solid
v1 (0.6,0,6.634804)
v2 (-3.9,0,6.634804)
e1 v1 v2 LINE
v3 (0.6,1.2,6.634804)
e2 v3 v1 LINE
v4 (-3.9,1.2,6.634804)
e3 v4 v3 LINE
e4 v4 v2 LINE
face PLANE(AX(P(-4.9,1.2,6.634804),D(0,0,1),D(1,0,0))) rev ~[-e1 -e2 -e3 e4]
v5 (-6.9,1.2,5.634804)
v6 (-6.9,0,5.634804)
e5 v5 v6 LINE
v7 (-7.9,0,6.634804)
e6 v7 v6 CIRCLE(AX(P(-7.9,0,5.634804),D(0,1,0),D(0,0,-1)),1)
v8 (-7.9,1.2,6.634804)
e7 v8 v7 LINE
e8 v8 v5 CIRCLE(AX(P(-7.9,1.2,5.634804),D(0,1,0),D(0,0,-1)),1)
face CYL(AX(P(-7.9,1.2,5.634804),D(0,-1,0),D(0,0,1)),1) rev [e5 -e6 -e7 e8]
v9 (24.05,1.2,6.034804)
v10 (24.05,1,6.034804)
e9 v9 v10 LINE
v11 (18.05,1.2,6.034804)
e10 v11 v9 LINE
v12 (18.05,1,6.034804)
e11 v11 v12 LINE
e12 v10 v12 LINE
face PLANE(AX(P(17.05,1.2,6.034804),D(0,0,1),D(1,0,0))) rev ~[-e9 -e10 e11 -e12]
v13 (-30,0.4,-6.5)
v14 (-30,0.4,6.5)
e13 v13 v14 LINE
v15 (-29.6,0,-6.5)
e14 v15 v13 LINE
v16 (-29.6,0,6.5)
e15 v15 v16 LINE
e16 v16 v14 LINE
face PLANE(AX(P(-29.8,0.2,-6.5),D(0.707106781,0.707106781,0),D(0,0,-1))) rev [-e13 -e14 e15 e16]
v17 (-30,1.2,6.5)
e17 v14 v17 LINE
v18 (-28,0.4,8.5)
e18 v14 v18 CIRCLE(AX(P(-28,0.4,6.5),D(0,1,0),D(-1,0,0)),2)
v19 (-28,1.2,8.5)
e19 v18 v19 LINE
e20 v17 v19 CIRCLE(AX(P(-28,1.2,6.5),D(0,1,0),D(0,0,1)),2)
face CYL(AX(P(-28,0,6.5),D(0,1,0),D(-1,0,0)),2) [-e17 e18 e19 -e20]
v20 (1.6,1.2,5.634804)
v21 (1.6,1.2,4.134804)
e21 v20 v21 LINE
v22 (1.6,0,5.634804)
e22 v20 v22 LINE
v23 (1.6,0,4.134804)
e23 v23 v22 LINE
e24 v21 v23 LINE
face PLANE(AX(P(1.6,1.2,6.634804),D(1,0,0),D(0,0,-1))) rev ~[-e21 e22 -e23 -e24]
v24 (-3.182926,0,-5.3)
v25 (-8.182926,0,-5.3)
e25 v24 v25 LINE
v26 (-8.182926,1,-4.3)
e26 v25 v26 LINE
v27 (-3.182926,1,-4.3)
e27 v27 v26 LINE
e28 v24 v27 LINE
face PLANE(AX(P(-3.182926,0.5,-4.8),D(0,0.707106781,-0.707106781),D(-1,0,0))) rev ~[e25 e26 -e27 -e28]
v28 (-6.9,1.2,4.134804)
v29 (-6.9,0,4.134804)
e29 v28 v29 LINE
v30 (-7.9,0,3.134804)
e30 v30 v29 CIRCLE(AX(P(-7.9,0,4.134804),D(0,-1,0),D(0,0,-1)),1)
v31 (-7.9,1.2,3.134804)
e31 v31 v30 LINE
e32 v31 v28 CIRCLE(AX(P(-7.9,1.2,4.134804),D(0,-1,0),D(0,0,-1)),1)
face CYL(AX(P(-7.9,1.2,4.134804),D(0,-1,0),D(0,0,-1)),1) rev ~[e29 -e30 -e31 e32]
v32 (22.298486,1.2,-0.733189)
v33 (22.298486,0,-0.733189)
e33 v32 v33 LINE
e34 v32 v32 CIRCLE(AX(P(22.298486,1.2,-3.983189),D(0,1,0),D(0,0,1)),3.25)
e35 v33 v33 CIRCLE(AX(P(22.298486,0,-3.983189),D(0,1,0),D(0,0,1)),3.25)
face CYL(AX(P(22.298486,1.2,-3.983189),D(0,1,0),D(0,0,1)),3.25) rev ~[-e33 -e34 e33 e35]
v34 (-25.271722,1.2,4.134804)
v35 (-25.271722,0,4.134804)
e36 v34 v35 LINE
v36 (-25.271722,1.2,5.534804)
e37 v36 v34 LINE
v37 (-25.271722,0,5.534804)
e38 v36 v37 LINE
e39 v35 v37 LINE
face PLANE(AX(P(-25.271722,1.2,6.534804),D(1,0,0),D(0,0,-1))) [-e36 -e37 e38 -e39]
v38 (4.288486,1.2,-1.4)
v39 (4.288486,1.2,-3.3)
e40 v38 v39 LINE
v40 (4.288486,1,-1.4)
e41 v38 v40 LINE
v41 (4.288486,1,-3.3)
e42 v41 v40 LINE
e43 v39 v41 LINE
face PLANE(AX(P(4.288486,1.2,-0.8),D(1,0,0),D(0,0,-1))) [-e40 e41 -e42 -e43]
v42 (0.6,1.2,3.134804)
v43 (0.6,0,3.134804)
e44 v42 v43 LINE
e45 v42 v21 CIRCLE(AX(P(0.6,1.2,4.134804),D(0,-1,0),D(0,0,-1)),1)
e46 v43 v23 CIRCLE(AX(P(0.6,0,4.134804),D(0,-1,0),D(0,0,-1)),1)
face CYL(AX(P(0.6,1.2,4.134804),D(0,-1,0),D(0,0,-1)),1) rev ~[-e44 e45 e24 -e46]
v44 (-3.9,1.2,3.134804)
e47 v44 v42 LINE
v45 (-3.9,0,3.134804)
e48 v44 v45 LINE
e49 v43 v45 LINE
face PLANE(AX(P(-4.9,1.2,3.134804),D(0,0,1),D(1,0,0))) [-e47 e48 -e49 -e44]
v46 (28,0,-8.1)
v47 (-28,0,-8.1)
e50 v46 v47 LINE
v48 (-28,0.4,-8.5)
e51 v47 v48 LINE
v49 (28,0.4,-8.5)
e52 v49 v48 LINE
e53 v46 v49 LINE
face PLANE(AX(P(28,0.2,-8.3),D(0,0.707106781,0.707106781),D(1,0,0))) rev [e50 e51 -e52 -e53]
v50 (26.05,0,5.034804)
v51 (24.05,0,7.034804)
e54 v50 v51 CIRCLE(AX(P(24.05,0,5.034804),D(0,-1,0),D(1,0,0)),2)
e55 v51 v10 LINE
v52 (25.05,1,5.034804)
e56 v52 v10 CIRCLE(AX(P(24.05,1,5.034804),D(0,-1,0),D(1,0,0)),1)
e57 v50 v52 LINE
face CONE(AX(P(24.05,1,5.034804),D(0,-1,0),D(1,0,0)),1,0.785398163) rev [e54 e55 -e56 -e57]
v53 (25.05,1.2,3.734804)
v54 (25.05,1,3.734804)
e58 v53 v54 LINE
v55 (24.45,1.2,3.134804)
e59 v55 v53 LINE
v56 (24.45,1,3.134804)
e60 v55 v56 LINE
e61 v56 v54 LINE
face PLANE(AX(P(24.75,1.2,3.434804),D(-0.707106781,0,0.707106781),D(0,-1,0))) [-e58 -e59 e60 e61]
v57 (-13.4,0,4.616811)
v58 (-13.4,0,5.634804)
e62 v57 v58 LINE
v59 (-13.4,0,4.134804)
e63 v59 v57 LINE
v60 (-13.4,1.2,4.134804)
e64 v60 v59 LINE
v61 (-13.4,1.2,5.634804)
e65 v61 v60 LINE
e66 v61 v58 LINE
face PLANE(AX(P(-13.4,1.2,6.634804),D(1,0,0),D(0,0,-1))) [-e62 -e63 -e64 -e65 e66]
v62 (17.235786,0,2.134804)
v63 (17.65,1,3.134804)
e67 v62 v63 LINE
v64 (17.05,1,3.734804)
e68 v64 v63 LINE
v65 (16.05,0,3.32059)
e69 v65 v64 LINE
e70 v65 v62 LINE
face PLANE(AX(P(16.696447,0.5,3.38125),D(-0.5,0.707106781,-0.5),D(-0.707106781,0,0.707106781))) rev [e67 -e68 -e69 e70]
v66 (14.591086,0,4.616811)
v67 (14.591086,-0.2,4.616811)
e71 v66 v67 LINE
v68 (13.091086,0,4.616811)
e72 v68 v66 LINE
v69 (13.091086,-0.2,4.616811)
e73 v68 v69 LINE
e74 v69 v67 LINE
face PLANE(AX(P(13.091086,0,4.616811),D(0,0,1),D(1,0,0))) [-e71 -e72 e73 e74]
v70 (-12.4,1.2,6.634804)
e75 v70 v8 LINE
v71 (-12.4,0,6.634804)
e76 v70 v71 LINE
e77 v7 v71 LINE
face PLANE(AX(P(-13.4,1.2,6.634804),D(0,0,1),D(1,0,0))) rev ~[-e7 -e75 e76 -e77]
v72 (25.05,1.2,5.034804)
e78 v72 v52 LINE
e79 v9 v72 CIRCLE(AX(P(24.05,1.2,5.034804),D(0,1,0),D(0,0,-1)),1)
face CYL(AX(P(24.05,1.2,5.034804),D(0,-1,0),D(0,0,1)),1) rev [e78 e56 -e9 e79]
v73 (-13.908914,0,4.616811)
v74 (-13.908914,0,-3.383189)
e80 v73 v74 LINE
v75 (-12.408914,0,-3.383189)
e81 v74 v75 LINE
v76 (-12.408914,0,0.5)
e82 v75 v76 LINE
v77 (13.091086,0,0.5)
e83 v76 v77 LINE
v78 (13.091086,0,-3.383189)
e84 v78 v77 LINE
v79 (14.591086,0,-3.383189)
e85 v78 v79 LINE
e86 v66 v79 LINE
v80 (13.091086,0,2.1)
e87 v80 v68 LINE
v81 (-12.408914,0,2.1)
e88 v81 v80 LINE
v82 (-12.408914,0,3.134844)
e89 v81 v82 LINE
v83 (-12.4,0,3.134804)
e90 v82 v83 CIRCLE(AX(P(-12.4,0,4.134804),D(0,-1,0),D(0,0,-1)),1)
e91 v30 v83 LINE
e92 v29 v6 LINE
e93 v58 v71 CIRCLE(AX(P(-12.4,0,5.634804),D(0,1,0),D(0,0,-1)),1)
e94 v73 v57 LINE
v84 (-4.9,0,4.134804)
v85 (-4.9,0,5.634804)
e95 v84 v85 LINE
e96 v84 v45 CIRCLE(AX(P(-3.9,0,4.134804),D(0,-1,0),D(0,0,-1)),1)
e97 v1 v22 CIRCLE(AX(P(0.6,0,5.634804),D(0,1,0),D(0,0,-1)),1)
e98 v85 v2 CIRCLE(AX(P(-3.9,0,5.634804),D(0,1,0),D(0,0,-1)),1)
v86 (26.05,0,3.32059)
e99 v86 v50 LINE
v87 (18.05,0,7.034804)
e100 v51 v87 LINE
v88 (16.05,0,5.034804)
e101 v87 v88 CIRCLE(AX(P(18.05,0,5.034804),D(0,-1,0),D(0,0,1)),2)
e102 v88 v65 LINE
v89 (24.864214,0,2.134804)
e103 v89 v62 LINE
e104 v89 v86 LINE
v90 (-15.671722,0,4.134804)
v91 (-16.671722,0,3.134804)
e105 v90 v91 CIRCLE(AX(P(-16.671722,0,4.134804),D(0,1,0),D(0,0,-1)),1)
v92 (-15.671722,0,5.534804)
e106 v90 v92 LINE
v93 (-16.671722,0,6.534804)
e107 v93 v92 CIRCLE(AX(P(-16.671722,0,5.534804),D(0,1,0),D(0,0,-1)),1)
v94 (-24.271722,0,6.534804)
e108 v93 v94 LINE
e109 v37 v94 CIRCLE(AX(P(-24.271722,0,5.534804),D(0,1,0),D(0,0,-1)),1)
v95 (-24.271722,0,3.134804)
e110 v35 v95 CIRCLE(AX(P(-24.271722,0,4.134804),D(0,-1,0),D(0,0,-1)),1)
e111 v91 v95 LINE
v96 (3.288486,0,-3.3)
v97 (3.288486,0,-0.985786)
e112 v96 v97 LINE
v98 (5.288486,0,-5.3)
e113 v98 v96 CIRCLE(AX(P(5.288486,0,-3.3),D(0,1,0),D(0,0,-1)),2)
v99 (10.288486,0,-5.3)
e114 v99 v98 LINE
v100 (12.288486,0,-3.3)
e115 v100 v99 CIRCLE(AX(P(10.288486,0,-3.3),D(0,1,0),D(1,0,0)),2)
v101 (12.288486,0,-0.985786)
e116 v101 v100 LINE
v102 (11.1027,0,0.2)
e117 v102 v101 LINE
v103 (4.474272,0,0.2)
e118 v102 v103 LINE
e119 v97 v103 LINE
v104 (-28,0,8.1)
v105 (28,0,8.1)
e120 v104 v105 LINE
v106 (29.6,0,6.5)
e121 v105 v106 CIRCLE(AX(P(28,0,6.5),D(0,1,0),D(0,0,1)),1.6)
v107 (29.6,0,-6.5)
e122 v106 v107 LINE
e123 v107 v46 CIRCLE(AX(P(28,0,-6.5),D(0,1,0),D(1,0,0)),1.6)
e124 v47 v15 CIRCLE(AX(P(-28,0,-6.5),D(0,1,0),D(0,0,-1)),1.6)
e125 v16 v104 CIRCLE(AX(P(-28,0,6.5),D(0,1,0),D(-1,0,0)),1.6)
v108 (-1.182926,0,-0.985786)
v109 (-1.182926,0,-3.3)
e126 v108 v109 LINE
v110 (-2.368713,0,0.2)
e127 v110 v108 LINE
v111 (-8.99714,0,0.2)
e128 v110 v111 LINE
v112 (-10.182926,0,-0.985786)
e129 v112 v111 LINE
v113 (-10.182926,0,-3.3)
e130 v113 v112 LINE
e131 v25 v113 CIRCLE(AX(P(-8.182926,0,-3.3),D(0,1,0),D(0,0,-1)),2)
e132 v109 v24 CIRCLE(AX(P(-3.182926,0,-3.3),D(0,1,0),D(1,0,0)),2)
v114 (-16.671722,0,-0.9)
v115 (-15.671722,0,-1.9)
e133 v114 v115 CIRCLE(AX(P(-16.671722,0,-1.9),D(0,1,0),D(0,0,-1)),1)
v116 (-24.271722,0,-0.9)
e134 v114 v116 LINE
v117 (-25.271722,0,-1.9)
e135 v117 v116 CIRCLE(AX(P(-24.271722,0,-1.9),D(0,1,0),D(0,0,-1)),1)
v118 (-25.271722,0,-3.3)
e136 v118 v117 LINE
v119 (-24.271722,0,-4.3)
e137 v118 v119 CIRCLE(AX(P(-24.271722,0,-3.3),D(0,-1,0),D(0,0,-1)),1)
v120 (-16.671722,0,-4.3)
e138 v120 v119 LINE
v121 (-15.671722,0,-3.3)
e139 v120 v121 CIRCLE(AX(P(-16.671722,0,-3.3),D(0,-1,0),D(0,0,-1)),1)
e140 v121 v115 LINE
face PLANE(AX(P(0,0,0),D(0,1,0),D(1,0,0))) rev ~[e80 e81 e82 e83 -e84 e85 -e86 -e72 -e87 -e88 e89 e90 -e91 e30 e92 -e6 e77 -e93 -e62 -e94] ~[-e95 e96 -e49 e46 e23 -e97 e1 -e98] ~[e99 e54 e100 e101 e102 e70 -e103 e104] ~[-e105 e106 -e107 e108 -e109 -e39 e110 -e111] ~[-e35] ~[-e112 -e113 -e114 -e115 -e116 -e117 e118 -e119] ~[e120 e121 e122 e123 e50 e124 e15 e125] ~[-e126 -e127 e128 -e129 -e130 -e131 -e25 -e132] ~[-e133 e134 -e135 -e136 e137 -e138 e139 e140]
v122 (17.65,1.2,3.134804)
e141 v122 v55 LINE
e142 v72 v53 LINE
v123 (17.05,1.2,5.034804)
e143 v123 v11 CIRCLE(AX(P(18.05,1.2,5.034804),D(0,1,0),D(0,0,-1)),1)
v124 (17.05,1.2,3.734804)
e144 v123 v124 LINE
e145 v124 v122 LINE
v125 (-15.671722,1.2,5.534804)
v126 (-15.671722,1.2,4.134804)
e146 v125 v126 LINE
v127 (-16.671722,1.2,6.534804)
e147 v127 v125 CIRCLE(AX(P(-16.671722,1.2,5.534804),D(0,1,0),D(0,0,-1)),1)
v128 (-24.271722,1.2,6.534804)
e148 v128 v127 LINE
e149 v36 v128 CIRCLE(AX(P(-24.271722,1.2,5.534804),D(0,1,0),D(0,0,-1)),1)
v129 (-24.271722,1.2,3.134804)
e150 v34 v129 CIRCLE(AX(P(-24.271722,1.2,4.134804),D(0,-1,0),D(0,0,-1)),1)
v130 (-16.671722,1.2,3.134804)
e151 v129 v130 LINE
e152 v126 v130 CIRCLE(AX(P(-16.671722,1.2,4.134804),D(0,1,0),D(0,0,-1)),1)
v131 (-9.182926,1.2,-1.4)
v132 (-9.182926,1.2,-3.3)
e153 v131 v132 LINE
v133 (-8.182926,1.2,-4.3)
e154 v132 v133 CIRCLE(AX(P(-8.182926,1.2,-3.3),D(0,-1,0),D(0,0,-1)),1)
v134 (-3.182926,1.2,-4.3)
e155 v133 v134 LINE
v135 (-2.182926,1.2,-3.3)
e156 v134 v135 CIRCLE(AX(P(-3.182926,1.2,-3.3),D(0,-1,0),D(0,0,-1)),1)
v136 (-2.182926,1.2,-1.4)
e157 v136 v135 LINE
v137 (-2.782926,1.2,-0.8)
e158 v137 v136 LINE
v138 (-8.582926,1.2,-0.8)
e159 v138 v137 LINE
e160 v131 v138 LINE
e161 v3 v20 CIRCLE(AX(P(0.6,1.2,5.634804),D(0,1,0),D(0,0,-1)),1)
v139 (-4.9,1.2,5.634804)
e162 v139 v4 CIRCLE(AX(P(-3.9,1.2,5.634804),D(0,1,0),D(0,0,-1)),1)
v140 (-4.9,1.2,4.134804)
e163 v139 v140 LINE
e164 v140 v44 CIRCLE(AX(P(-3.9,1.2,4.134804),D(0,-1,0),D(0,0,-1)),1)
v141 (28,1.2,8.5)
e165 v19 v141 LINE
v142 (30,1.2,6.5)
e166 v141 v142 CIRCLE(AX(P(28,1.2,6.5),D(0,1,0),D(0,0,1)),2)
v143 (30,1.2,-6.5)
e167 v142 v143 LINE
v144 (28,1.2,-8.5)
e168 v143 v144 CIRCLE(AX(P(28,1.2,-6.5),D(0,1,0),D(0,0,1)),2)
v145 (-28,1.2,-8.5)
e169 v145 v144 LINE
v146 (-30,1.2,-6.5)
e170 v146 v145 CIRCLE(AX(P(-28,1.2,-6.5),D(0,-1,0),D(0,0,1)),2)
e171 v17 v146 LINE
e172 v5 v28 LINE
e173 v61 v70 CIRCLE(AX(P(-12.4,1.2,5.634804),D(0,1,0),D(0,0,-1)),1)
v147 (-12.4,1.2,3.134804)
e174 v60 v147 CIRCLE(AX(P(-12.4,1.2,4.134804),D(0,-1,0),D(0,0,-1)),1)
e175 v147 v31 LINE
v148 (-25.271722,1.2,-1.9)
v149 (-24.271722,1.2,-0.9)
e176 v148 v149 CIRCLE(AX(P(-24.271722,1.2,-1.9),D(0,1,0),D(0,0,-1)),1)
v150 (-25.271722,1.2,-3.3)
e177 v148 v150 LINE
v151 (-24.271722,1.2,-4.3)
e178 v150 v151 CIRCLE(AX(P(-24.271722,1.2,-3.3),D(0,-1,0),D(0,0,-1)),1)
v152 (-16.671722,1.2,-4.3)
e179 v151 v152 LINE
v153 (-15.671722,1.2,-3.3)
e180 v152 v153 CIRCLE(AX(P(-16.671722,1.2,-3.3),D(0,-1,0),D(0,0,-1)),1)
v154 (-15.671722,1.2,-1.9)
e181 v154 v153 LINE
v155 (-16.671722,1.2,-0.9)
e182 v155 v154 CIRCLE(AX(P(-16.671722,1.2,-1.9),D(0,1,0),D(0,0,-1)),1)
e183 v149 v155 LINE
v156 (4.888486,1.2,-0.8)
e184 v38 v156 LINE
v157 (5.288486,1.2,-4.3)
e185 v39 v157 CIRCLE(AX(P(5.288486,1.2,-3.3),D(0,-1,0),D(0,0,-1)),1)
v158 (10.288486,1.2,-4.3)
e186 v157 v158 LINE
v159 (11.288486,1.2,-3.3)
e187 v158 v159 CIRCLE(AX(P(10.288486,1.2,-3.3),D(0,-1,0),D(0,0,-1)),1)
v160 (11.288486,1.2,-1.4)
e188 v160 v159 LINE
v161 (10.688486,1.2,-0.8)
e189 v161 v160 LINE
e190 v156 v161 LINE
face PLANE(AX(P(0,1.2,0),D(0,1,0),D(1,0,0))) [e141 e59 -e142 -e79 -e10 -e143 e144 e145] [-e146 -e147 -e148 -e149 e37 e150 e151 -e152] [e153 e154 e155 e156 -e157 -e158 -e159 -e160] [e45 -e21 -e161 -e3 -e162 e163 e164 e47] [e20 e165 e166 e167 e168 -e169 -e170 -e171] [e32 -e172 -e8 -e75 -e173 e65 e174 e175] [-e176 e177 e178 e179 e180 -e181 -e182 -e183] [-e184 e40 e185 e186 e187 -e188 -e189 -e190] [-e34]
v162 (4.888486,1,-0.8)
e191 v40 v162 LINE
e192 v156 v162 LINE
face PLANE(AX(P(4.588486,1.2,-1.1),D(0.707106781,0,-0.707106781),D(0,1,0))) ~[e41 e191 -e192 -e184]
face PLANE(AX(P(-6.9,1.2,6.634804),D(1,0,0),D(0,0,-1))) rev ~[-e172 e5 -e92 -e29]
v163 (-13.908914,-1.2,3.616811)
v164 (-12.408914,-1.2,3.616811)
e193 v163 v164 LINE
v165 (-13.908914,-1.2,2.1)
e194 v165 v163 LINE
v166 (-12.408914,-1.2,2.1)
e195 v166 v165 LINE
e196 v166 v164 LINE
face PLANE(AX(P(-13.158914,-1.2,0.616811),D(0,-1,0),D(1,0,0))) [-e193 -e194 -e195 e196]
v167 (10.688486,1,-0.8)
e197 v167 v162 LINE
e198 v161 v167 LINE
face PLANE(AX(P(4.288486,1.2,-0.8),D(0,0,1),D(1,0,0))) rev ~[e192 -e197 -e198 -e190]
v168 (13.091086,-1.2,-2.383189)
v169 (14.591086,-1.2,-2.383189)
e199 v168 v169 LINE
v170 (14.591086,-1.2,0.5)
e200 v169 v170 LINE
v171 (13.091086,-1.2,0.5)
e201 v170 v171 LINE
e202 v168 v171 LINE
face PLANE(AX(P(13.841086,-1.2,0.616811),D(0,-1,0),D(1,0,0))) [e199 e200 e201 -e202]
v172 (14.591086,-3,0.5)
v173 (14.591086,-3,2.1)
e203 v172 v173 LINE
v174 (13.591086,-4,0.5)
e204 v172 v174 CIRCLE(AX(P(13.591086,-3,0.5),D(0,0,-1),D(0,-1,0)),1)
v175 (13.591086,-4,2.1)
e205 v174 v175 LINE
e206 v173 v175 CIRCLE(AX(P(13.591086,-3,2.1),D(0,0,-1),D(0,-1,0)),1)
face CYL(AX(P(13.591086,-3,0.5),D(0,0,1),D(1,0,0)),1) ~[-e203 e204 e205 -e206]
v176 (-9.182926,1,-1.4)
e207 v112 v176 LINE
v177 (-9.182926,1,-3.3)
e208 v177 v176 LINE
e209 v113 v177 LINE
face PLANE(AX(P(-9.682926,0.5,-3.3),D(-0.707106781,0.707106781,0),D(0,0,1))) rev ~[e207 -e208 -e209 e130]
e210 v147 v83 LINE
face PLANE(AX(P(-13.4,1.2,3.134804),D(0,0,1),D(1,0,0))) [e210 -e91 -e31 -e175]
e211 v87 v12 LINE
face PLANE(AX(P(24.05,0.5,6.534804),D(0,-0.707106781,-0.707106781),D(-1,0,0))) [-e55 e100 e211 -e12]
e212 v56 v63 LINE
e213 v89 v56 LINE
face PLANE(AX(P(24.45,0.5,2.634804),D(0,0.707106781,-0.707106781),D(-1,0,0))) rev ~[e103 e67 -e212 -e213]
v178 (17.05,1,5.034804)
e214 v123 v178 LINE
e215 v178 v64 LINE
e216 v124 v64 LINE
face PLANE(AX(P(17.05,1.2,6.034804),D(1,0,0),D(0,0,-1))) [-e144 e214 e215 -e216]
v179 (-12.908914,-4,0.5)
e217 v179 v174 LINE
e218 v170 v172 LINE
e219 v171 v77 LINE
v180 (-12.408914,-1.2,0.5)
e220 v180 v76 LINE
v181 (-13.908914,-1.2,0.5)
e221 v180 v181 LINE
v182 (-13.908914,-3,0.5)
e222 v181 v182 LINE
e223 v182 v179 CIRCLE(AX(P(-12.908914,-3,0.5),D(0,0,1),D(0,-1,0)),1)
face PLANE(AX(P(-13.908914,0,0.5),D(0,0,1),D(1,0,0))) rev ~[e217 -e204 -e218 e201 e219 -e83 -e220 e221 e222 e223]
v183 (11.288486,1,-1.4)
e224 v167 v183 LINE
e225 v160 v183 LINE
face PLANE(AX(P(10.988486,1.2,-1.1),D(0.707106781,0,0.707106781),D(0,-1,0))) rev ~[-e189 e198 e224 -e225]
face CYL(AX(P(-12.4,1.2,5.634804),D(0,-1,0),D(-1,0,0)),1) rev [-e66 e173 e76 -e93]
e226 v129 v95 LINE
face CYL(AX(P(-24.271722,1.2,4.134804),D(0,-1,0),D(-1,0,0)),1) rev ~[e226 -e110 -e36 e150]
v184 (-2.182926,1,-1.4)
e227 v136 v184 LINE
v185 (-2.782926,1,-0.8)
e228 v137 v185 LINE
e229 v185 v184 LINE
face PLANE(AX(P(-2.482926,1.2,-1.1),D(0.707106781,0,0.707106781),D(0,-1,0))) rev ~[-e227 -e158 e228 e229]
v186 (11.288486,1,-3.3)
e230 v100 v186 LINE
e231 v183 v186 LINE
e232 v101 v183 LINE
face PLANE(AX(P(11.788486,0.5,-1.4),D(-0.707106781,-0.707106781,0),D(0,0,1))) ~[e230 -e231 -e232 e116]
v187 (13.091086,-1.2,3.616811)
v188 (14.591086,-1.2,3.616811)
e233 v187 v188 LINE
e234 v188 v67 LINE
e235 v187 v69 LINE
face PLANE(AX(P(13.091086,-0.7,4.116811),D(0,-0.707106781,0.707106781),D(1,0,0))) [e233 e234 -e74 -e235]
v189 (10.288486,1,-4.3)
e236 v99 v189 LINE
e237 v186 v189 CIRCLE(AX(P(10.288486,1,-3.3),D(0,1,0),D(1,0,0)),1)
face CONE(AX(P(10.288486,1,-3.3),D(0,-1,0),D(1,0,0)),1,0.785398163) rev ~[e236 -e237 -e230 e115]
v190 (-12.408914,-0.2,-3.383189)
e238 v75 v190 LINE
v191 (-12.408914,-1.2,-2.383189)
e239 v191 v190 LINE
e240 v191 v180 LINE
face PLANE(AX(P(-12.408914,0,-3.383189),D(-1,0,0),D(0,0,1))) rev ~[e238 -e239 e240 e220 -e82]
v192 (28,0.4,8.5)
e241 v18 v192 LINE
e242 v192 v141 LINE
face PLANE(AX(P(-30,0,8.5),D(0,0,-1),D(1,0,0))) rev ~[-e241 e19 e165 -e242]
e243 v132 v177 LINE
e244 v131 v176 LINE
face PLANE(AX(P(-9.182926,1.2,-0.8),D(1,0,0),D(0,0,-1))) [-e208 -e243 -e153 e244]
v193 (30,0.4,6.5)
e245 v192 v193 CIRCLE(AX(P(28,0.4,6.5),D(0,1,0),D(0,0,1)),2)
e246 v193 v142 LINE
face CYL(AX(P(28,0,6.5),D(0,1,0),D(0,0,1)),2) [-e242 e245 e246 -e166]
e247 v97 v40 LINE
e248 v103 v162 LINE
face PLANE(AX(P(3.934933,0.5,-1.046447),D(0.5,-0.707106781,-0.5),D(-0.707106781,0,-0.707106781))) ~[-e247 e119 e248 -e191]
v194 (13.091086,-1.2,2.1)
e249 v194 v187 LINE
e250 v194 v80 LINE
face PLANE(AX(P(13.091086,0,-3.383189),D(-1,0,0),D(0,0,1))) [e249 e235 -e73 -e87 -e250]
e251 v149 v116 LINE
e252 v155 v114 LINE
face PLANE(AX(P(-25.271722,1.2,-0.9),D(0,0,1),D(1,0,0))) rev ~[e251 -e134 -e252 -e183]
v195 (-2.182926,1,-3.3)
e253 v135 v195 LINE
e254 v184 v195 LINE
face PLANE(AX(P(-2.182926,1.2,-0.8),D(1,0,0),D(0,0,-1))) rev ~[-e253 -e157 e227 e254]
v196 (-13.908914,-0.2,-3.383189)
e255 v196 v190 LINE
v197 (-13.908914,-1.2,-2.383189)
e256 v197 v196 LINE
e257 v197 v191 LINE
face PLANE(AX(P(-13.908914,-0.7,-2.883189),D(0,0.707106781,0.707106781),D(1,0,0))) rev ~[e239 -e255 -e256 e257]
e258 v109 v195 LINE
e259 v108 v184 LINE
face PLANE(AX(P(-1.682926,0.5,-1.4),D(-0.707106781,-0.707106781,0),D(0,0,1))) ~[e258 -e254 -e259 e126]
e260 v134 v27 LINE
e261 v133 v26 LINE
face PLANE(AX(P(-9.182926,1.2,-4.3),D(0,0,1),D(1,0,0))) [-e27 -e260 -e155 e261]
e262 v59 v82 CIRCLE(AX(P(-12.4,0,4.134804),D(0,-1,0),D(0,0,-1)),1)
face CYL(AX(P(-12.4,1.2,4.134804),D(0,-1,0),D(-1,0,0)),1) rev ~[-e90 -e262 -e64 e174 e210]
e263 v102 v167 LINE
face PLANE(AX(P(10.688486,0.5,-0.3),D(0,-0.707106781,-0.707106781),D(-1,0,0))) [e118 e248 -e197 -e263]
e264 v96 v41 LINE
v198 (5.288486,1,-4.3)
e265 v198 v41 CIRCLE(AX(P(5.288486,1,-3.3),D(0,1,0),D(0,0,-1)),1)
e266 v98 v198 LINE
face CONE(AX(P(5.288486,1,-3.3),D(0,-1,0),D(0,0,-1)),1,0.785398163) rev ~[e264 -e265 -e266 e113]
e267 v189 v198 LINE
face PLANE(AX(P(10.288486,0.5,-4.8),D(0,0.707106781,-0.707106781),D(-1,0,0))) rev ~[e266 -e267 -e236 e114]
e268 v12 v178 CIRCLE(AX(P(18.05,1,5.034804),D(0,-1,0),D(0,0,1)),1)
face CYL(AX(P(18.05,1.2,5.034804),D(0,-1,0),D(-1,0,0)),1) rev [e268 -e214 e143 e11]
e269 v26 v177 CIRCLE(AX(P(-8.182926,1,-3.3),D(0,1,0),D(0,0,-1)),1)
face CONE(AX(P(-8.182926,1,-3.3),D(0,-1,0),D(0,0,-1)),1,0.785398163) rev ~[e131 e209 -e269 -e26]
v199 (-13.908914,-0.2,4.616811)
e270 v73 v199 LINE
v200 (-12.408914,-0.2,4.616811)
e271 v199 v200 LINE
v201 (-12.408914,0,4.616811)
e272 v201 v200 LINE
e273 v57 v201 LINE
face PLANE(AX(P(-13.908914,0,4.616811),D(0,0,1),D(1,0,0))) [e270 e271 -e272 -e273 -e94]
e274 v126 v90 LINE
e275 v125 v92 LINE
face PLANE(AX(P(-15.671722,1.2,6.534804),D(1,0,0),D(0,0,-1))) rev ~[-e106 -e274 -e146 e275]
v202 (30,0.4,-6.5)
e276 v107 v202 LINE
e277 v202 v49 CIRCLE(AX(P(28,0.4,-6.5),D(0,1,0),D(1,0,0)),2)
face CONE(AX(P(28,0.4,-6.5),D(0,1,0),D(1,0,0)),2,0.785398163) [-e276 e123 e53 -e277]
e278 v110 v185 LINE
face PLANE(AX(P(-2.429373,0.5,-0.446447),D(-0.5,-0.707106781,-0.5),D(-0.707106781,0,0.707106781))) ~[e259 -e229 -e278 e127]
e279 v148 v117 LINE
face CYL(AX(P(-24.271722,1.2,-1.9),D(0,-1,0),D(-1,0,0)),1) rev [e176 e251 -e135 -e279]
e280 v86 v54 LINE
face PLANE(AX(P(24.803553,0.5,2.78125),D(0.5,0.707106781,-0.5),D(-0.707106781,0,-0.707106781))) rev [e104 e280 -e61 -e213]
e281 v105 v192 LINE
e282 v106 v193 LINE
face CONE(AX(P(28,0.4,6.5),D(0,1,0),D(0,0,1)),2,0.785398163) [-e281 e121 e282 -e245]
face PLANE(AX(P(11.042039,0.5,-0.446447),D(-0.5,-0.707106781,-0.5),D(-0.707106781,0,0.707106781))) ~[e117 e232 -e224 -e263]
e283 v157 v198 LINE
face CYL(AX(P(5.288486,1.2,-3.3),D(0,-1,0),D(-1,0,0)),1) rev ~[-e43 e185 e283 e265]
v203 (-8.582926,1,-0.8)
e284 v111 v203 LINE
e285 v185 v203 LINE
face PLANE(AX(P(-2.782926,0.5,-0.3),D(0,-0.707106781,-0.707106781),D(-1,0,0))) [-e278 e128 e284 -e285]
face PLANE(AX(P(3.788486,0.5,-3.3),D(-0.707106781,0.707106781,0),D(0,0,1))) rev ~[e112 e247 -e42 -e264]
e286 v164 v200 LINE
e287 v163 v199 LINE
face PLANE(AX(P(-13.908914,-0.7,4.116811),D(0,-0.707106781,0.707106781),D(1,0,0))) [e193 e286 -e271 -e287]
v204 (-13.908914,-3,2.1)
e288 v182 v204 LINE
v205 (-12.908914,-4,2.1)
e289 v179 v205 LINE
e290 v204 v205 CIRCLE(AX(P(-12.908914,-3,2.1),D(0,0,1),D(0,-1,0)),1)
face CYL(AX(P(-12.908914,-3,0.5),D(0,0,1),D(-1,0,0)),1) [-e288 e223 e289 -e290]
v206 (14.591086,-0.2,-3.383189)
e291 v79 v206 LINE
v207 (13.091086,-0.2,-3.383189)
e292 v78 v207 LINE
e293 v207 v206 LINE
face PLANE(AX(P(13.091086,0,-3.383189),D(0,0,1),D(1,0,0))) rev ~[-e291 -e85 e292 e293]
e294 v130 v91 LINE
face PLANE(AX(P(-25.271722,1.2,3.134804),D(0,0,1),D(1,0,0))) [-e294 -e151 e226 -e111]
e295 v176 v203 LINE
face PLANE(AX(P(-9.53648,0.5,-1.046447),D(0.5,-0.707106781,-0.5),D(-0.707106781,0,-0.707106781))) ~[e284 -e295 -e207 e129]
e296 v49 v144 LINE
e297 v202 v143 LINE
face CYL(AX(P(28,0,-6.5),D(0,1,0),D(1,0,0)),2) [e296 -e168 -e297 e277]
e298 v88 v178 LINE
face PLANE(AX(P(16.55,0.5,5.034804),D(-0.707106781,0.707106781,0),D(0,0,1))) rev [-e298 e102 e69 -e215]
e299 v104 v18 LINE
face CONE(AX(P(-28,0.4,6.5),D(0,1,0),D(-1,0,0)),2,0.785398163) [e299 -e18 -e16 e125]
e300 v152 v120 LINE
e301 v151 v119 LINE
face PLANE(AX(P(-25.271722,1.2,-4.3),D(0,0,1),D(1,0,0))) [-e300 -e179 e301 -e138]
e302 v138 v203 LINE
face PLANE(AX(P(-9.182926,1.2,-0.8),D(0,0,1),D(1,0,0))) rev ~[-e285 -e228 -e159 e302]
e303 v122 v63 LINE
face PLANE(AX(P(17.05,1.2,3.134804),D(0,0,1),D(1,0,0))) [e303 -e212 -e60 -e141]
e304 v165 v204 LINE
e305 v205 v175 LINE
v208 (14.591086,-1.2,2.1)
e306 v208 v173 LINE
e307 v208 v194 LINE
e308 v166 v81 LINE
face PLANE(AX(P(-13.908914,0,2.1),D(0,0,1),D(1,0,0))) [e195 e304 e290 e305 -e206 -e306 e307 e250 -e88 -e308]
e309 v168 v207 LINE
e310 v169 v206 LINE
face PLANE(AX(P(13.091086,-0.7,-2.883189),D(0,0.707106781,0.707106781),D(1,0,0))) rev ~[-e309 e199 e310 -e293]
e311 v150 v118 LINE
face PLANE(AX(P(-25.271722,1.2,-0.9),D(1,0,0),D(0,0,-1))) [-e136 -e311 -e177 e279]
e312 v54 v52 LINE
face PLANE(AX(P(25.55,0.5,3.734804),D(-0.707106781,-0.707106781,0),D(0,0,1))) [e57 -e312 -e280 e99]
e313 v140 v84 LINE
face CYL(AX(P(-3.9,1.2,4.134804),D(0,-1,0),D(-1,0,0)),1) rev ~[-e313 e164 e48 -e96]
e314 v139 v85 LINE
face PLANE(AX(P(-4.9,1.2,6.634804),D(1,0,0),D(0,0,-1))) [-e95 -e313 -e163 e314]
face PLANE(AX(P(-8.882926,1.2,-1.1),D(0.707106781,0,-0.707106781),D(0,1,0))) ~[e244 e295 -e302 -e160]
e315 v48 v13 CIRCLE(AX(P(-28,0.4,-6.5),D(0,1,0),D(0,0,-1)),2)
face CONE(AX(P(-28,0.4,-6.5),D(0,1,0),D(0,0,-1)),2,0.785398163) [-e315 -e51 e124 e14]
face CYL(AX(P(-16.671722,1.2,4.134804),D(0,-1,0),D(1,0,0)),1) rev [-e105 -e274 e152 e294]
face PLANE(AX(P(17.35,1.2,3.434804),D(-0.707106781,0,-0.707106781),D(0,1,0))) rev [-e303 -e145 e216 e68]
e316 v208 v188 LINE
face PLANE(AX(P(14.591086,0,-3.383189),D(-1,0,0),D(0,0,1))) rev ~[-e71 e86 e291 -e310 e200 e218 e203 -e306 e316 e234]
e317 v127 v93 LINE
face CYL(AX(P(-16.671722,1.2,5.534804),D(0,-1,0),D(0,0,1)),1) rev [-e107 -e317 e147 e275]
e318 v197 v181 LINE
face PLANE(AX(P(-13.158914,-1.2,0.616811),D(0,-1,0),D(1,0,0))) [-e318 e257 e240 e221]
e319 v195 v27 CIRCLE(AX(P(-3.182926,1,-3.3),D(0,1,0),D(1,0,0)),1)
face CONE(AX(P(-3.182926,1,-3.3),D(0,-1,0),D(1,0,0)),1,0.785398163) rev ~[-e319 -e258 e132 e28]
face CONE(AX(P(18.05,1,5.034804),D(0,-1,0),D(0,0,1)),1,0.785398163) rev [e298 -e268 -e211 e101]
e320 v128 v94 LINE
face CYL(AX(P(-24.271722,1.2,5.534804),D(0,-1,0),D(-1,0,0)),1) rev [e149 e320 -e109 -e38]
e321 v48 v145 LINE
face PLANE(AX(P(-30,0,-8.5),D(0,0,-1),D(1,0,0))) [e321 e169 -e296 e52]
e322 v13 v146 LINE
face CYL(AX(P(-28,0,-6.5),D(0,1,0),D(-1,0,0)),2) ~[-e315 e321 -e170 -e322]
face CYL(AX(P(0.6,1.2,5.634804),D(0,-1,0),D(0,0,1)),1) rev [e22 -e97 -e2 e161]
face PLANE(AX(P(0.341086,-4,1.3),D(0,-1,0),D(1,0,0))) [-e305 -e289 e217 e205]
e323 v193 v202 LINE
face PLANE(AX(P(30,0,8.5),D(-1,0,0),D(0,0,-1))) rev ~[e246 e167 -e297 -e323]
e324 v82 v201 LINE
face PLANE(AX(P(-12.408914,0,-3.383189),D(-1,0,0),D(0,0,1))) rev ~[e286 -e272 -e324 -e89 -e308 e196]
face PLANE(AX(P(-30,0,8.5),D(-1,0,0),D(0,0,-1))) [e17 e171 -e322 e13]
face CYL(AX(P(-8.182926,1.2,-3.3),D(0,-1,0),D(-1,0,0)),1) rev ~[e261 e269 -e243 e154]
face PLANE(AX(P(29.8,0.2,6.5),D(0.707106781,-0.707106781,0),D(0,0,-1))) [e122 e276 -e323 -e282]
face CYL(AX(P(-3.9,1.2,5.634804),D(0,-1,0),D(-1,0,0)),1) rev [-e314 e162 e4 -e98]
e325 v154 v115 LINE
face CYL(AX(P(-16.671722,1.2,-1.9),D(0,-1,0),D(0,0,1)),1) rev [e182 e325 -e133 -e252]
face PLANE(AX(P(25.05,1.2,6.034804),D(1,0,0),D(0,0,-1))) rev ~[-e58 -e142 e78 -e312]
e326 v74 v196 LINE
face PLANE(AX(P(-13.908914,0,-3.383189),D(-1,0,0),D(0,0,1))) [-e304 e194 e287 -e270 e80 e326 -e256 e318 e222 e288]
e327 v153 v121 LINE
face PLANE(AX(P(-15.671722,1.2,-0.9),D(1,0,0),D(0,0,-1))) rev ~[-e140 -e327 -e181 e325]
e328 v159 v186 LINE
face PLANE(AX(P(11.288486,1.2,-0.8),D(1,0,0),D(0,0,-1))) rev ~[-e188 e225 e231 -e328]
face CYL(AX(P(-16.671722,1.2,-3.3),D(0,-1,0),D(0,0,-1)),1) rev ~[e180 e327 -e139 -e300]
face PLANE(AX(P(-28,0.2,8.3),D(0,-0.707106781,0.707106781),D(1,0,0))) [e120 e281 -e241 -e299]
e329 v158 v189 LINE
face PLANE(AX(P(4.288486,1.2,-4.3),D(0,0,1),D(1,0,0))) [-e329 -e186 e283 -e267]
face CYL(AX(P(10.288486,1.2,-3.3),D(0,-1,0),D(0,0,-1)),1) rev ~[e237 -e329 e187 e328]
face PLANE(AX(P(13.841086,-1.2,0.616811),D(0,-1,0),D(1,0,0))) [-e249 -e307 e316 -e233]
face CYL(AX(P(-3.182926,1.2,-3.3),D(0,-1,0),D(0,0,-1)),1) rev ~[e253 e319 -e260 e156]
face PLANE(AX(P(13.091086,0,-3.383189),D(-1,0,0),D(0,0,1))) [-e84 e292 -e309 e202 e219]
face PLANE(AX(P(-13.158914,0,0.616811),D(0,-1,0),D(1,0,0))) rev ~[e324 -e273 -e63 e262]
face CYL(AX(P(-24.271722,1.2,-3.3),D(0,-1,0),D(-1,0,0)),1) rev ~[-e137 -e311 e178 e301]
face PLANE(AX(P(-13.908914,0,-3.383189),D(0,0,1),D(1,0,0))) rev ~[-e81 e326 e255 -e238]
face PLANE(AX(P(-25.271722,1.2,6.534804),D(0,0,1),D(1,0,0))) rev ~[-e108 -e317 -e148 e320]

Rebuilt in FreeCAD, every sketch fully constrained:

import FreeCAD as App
import Part
import Sketcher


def edges_at(feature, points):
    """Names of the edges that pass closest to the given points."""
    edges = feature.Shape.Edges
    near = lambda p: min(range(len(edges)), key=lambda i: edges[i].distToShape(Part.Vertex(*p))[0])
    return sorted({f"Edge{near(p) + 1}" for p in points})

doc = App.newDocument("Part")
body = doc.addObject("PartDesign::Body", "Body")

# Sketch on XZ plane
sketch1 = body.newObject("Sketcher::SketchObject", "Sketch")
sketch1.AttachmentSupport = (doc.getObject("XZ_Plane"), [""])
sketch1.MapMode = "FlatFace"
sketch1.addGeometry([
    Part.LineSegment(App.Vector(-30, -8, 0), App.Vector(-30, 8, 0)),
    Part.LineSegment(App.Vector(-30, 8, 0), App.Vector(30, 8, 0)),
    Part.LineSegment(App.Vector(30, 8, 0), App.Vector(30, -8, 0)),
    Part.LineSegment(App.Vector(30, -8, 0), App.Vector(-30, -8, 0)),
], False)
sketch1.addConstraint([
    Sketcher.Constraint("Coincident", 0, 2, 1, 1),
    Sketcher.Constraint("Coincident", 1, 2, 2, 1),
    Sketcher.Constraint("Coincident", 2, 2, 3, 1),
    Sketcher.Constraint("Coincident", 3, 2, 0, 1),
    Sketcher.Constraint("Vertical", 0),
    Sketcher.Constraint("Horizontal", 1),
    Sketcher.Constraint("Vertical", 2),
    Sketcher.Constraint("Horizontal", 3),
    Sketcher.Constraint("Symmetric", 0, 2, 2, 2, -1, 1),
    Sketcher.Constraint("DistanceX", 1, 1, 1, 2, 60.0),
    Sketcher.Constraint("DistanceY", 0, 1, 0, 2, 17.0),
])
pad1 = body.newObject("PartDesign::Pad", "Pad")
pad1.Profile = sketch1
pad1.Length = 1.2
pad1.Reversed = True

# Sketch on XZ plane
sketch2 = body.newObject("Sketcher::SketchObject", "Sketch001")
sketch2.AttachmentSupport = (doc.getObject("XZ_Plane"), [""])
sketch2.MapMode = "FlatFace"
sketch2.AttachmentOffset = App.Placement(App.Vector(0, 0, -1.2), App.Rotation())
sketch2.addGeometry(Part.Circle(App.Vector(22.3, -4, 0), App.Vector(0, 0, 1), 3.2), False)
sketch2.addConstraint([
    Sketcher.Constraint("Diameter", 0, 6.5),
    Sketcher.Constraint("DistanceY", 0, 3, -1, 1, 3.983189),
    Sketcher.Constraint("DistanceX", -1, 1, 0, 3, 22.298486),
])
pocket1 = body.newObject("PartDesign::Pocket", "Pocket")
pocket1.Profile = sketch2
pocket1.Type = "UpToFirst"
pocket1.Reversed = True

# Sketch on XZ plane
sketch3 = body.newObject("Sketcher::SketchObject", "Sketch002")
sketch3.AttachmentSupport = (doc.getObject("XZ_Plane"), [""])
sketch3.MapMode = "FlatFace"
sketch3.AttachmentOffset = App.Placement(App.Vector(0, 0, -1.2), App.Rotation())
sketch3.addGeometry([
    Part.LineSegment(App.Vector(-25.3, -4.3, 0), App.Vector(-25.3, -0.9, 0)),
    Part.LineSegment(App.Vector(-25.3, -0.9, 0), App.Vector(-15.7, -0.9, 0)),
    Part.LineSegment(App.Vector(-15.7, -0.9, 0), App.Vector(-15.7, -4.3, 0)),
    Part.LineSegment(App.Vector(-15.7, -4.3, 0), App.Vector(-25.3, -4.3, 0)),
], False)
sketch3.addConstraint([
    Sketcher.Constraint("Coincident", 0, 2, 1, 1),
    Sketcher.Constraint("Coincident", 1, 2, 2, 1),
    Sketcher.Constraint("Coincident", 2, 2, 3, 1),
    Sketcher.Constraint("Coincident", 3, 2, 0, 1),
    Sketcher.Constraint("Vertical", 0),
    Sketcher.Constraint("Horizontal", 1),
    Sketcher.Constraint("Vertical", 2),
    Sketcher.Constraint("Horizontal", 3),
    Sketcher.Constraint("DistanceX", 1, 1, 1, 2, 9.6),
    Sketcher.Constraint("DistanceY", 0, 1, 0, 2, 3.4),
    Sketcher.Constraint("DistanceY", 0, 2, -1, 1, 0.9),
    Sketcher.Constraint("DistanceX", 0, 2, -1, 1, 25.271722),
])
pocket2 = body.newObject("PartDesign::Pocket", "Pocket001")
pocket2.Profile = sketch3
pocket2.Type = "UpToFirst"
pocket2.Reversed = True

# Sketch on XZ plane
sketch4 = body.newObject("Sketcher::SketchObject", "Sketch003")
sketch4.AttachmentSupport = (doc.getObject("XZ_Plane"), [""])
sketch4.MapMode = "FlatFace"
sketch4.AttachmentOffset = App.Placement(App.Vector(0, 0, -1.2), App.Rotation())
sketch4.addGeometry([
    Part.LineSegment(App.Vector(-9.2, -4.3, 0), App.Vector(-9.2, -0.8, 0)),
    Part.LineSegment(App.Vector(-9.2, -0.8, 0), App.Vector(-2.2, -0.8, 0)),
    Part.LineSegment(App.Vector(-2.2, -0.8, 0), App.Vector(-2.2, -4.3, 0)),
    Part.LineSegment(App.Vector(-2.2, -4.3, 0), App.Vector(-9.2, -4.3, 0)),
], False)
sketch4.addConstraint([
    Sketcher.Constraint("Coincident", 0, 2, 1, 1),
    Sketcher.Constraint("Coincident", 1, 2, 2, 1),
    Sketcher.Constraint("Coincident", 2, 2, 3, 1),
    Sketcher.Constraint("Coincident", 3, 2, 0, 1),
    Sketcher.Constraint("Vertical", 0),
    Sketcher.Constraint("Horizontal", 1),
    Sketcher.Constraint("Vertical", 2),
    Sketcher.Constraint("Horizontal", 3),
    Sketcher.Constraint("DistanceX", 1, 1, 1, 2, 7.0),
    Sketcher.Constraint("DistanceY", 0, 1, 0, 2, 3.5),
    Sketcher.Constraint("DistanceY", 0, 2, -1, 1, 0.8),
    Sketcher.Constraint("DistanceX", 0, 2, -1, 1, 9.182926),
])
pocket3 = body.newObject("PartDesign::Pocket", "Pocket002")
pocket3.Profile = sketch4
pocket3.Type = "UpToFirst"
pocket3.Reversed = True

# Sketch on XZ plane
sketch5 = body.newObject("Sketcher::SketchObject", "Sketch004")
sketch5.AttachmentSupport = (doc.getObject("XZ_Plane"), [""])
sketch5.MapMode = "FlatFace"
sketch5.AttachmentOffset = App.Placement(App.Vector(0, 0, -1.2), App.Rotation())
sketch5.addGeometry([
    Part.LineSegment(App.Vector(4.3, -4.3, 0), App.Vector(4.3, -0.8, 0)),
    Part.LineSegment(App.Vector(4.3, -0.8, 0), App.Vector(11.3, -0.8, 0)),
    Part.LineSegment(App.Vector(11.3, -0.8, 0), App.Vector(11.3, -4.3, 0)),
    Part.LineSegment(App.Vector(11.3, -4.3, 0), App.Vector(4.3, -4.3, 0)),
], False)
sketch5.addConstraint([
    Sketcher.Constraint("Coincident", 0, 2, 1, 1),
    Sketcher.Constraint("Coincident", 1, 2, 2, 1),
    Sketcher.Constraint("Coincident", 2, 2, 3, 1),
    Sketcher.Constraint("Coincident", 3, 2, 0, 1),
    Sketcher.Constraint("Vertical", 0),
    Sketcher.Constraint("Horizontal", 1),
    Sketcher.Constraint("Vertical", 2),
    Sketcher.Constraint("Horizontal", 3),
    Sketcher.Constraint("DistanceX", 1, 1, 1, 2, 7.0),
    Sketcher.Constraint("DistanceY", 0, 1, 0, 2, 3.5),
    Sketcher.Constraint("DistanceY", 0, 2, -1, 1, 0.8),
    Sketcher.Constraint("DistanceX", -1, 1, 0, 2, 4.288486),
])
pocket4 = body.newObject("PartDesign::Pocket", "Pocket003")
pocket4.Profile = sketch5
pocket4.Type = "UpToFirst"
pocket4.Reversed = True

# Sketch on XZ plane
sketch6 = body.newObject("Sketcher::SketchObject", "Sketch005")
sketch6.AttachmentSupport = (doc.getObject("XZ_Plane"), [""])
sketch6.MapMode = "FlatFace"
sketch6.AttachmentOffset = App.Placement(App.Vector(0, 0, -1.2), App.Rotation())
sketch6.addGeometry([
    Part.LineSegment(App.Vector(17.1, 3.1, 0), App.Vector(17.1, 6, 0)),
    Part.LineSegment(App.Vector(17.1, 6, 0), App.Vector(25.1, 6, 0)),
    Part.LineSegment(App.Vector(25.1, 6, 0), App.Vector(25.1, 3.1, 0)),
    Part.LineSegment(App.Vector(25.1, 3.1, 0), App.Vector(17.1, 3.1, 0)),
], False)
sketch6.addConstraint([
    Sketcher.Constraint("Coincident", 0, 2, 1, 1),
    Sketcher.Constraint("Coincident", 1, 2, 2, 1),
    Sketcher.Constraint("Coincident", 2, 2, 3, 1),
    Sketcher.Constraint("Coincident", 3, 2, 0, 1),
    Sketcher.Constraint("Vertical", 0),
    Sketcher.Constraint("Horizontal", 1),
    Sketcher.Constraint("Vertical", 2),
    Sketcher.Constraint("Horizontal", 3),
    Sketcher.Constraint("DistanceX", 1, 1, 1, 2, 8.0),
    Sketcher.Constraint("DistanceY", 0, 1, 0, 2, 2.9),
    Sketcher.Constraint("DistanceX", -1, 1, 0, 2, 17.05),
    Sketcher.Constraint("DistanceY", -1, 1, 0, 2, 6.034804),
])
pocket5 = body.newObject("PartDesign::Pocket", "Pocket004")
pocket5.Profile = sketch6
pocket5.Type = "UpToFirst"
pocket5.Reversed = True

# Sketch on XZ plane
sketch7 = body.newObject("Sketcher::SketchObject", "Sketch006")
sketch7.AttachmentSupport = (doc.getObject("XZ_Plane"), [""])
sketch7.MapMode = "FlatFace"
sketch7.AttachmentOffset = App.Placement(App.Vector(0, 0, -1.2), App.Rotation())
sketch7.addGeometry([
    Part.LineSegment(App.Vector(-4.9, 3.1, 0), App.Vector(-4.9, 6.6, 0)),
    Part.LineSegment(App.Vector(-4.9, 6.6, 0), App.Vector(1.6, 6.6, 0)),
    Part.LineSegment(App.Vector(1.6, 6.6, 0), App.Vector(1.6, 3.1, 0)),
    Part.LineSegment(App.Vector(1.6, 3.1, 0), App.Vector(-4.9, 3.1, 0)),
], False)
sketch7.addConstraint([
    Sketcher.Constraint("Coincident", 0, 2, 1, 1),
    Sketcher.Constraint("Coincident", 1, 2, 2, 1),
    Sketcher.Constraint("Coincident", 2, 2, 3, 1),
    Sketcher.Constraint("Coincident", 3, 2, 0, 1),
    Sketcher.Constraint("Vertical", 0),
    Sketcher.Constraint("Horizontal", 1),
    Sketcher.Constraint("Vertical", 2),
    Sketcher.Constraint("Horizontal", 3),
    Sketcher.Constraint("DistanceX", 1, 1, 1, 2, 6.5),
    Sketcher.Constraint("DistanceY", 0, 1, 0, 2, 3.5),
    Sketcher.Constraint("DistanceX", 0, 2, -1, 1, 4.9),
    Sketcher.Constraint("DistanceY", -1, 1, 0, 2, 6.634804),
])
pocket6 = body.newObject("PartDesign::Pocket", "Pocket005")
pocket6.Profile = sketch7
pocket6.Type = "UpToFirst"
pocket6.Reversed = True

# Sketch on XZ plane
sketch8 = body.newObject("Sketcher::SketchObject", "Sketch007")
sketch8.AttachmentSupport = (doc.getObject("XZ_Plane"), [""])
sketch8.MapMode = "FlatFace"
sketch8.AttachmentOffset = App.Placement(App.Vector(0, 0, -1.2), App.Rotation())
sketch8.addGeometry([
    Part.LineSegment(App.Vector(-13.4, 3.1, 0), App.Vector(-13.4, 6.6, 0)),
    Part.LineSegment(App.Vector(-13.4, 6.6, 0), App.Vector(-6.9, 6.6, 0)),
    Part.LineSegment(App.Vector(-6.9, 6.6, 0), App.Vector(-6.9, 3.1, 0)),
    Part.LineSegment(App.Vector(-6.9, 3.1, 0), App.Vector(-13.4, 3.1, 0)),
], False)
sketch8.addConstraint([
    Sketcher.Constraint("Coincident", 0, 2, 1, 1),
    Sketcher.Constraint("Coincident", 1, 2, 2, 1),
    Sketcher.Constraint("Coincident", 2, 2, 3, 1),
    Sketcher.Constraint("Coincident", 3, 2, 0, 1),
    Sketcher.Constraint("Vertical", 0),
    Sketcher.Constraint("Horizontal", 1),
    Sketcher.Constraint("Vertical", 2),
    Sketcher.Constraint("Horizontal", 3),
    Sketcher.Constraint("DistanceX", 1, 1, 1, 2, 6.5),
    Sketcher.Constraint("DistanceY", 0, 1, 0, 2, 3.5),
    Sketcher.Constraint("DistanceX", 0, 2, -1, 1, 13.4),
    Sketcher.Constraint("DistanceY", -1, 1, 0, 2, 6.634804),
])
pocket7 = body.newObject("PartDesign::Pocket", "Pocket006")
pocket7.Profile = sketch8
pocket7.Type = "UpToFirst"
pocket7.Reversed = True

# Sketch on XZ plane
sketch9 = body.newObject("Sketcher::SketchObject", "Sketch008")
sketch9.AttachmentSupport = (doc.getObject("XZ_Plane"), [""])
sketch9.MapMode = "FlatFace"
sketch9.AttachmentOffset = App.Placement(App.Vector(0, 0, -1.2), App.Rotation())
sketch9.addGeometry([
    Part.LineSegment(App.Vector(-25.3, 3.1, 0), App.Vector(-25.3, 6.5, 0)),
    Part.LineSegment(App.Vector(-25.3, 6.5, 0), App.Vector(-15.7, 6.5, 0)),
    Part.LineSegment(App.Vector(-15.7, 6.5, 0), App.Vector(-15.7, 3.1, 0)),
    Part.LineSegment(App.Vector(-15.7, 3.1, 0), App.Vector(-25.3, 3.1, 0)),
], False)
sketch9.addConstraint([
    Sketcher.Constraint("Coincident", 0, 2, 1, 1),
    Sketcher.Constraint("Coincident", 1, 2, 2, 1),
    Sketcher.Constraint("Coincident", 2, 2, 3, 1),
    Sketcher.Constraint("Coincident", 3, 2, 0, 1),
    Sketcher.Constraint("Vertical", 0),
    Sketcher.Constraint("Horizontal", 1),
    Sketcher.Constraint("Vertical", 2),
    Sketcher.Constraint("Horizontal", 3),
    Sketcher.Constraint("DistanceX", 1, 1, 1, 2, 9.6),
    Sketcher.Constraint("DistanceY", 0, 1, 0, 2, 3.4),
    Sketcher.Constraint("DistanceX", 0, 2, -1, 1, 25.271722),
    Sketcher.Constraint("DistanceY", -1, 1, 0, 2, 6.534804),
])
pocket8 = body.newObject("PartDesign::Pocket", "Pocket007")
pocket8.Profile = sketch9
pocket8.Type = "UpToFirst"
pocket8.Reversed = True
doc.recompute()

fillet = body.newObject("PartDesign::Fillet", "Fillet")
fillet.Base = (pocket8, edges_at(pocket8, [
    (-9.183, 0.6, -4.3),
    (-2.183, 0.6, -4.3),
    (4.288, 0.6, -4.3),
    (11.288, 0.6, -4.3),
    (17.05, 0.6, 6.035),
    (25.05, 0.6, 6.035),
    (-4.9, 0.6, 6.635),
    (-4.9, 0.6, 3.135),
    (1.6, 0.6, 3.135),
    (1.6, 0.6, 6.635),
    (-13.4, 0.6, 6.635),
    (-13.4, 0.6, 3.135),
    (-6.9, 0.6, 3.135),
    (-6.9, 0.6, 6.635),
    (-25.272, 0.6, 6.535),
    (-25.272, 0.6, 3.135),
    (-15.672, 0.6, 3.135),
    (-15.672, 0.6, 6.535),
    (-25.272, 0.6, -0.9),
    (-25.272, 0.6, -4.3),
    (-15.672, 0.6, -4.3),
    (-15.672, 0.6, -0.9),
]))
fillet.Radius = 1
doc.recompute()

chamfer = body.newObject("PartDesign::Chamfer", "Chamfer")
chamfer.Base = (fillet, edges_at(fillet, [
    (-9.183, 0.6, -0.8),
    (-2.183, 0.6, -0.8),
    (4.288, 0.6, -0.8),
    (11.288, 0.6, -0.8),
    (17.05, 0.6, 3.135),
    (25.05, 0.6, 3.135),
]))
chamfer.Size = 0.6

# Sketch on XZ plane
sketch10 = body.newObject("Sketcher::SketchObject", "Sketch009")
sketch10.AttachmentSupport = (doc.getObject("XZ_Plane"), [""])
sketch10.MapMode = "FlatFace"
sketch10.addGeometry([
    Part.LineSegment(App.Vector(-13.9, 4.6, 0), App.Vector(-13.9, -3.4, 0)),  # 0
    Part.LineSegment(App.Vector(-13.9, -3.4, 0), App.Vector(-12.4, -3.4, 0)),  # 1
    Part.LineSegment(App.Vector(-12.4, -3.4, 0), App.Vector(-12.4, 4.6, 0)),  # 2
    Part.LineSegment(App.Vector(-12.4, 4.6, 0), App.Vector(-13.9, 4.6, 0)),  # 3
    Part.LineSegment(App.Vector(13.1, 4.6, 0), App.Vector(13.1, -3.4, 0)),  # 4
    Part.LineSegment(App.Vector(13.1, -3.4, 0), App.Vector(14.6, -3.4, 0)),  # 5
    Part.LineSegment(App.Vector(14.6, -3.4, 0), App.Vector(14.6, 4.6, 0)),  # 6
    Part.LineSegment(App.Vector(14.6, 4.6, 0), App.Vector(13.1, 4.6, 0)),  # 7
], False)
sketch10.addConstraint([
    Sketcher.Constraint("Coincident", 0, 2, 1, 1),
    Sketcher.Constraint("Coincident", 1, 2, 2, 1),
    Sketcher.Constraint("Coincident", 2, 2, 3, 1),
    Sketcher.Constraint("Coincident", 3, 2, 0, 1),
    Sketcher.Constraint("Coincident", 4, 2, 5, 1),
    Sketcher.Constraint("Coincident", 5, 2, 6, 1),
    Sketcher.Constraint("Coincident", 6, 2, 7, 1),
    Sketcher.Constraint("Coincident", 7, 2, 4, 1),
    Sketcher.Constraint("Vertical", 0),
    Sketcher.Constraint("Horizontal", 1),
    Sketcher.Constraint("Vertical", 2),
    Sketcher.Constraint("Horizontal", 3),
    Sketcher.Constraint("Vertical", 4),
    Sketcher.Constraint("Horizontal", 5),
    Sketcher.Constraint("Vertical", 6),
    Sketcher.Constraint("Horizontal", 7),
    Sketcher.Constraint("Horizontal", 1, 2, 4, 2),
    Sketcher.Constraint("Horizontal", 3, 2, 6, 2),
    Sketcher.Constraint("Equal", 3, 5),
    Sketcher.Constraint("DistanceY", 0, 2, 0, 1, 8.0),
    Sketcher.Constraint("DistanceX", 1, 1, 1, 2, 1.5),
    Sketcher.Constraint("DistanceX", 0, 2, 4, 2, 27.0),
    Sketcher.Constraint("DistanceY", 0, 2, -1, 1, 3.383189),
    Sketcher.Constraint("DistanceX", 0, 2, -1, 1, 13.908914),
])
pad2 = body.newObject("PartDesign::Pad", "Pad001")
pad2.Profile = sketch10
pad2.Length = 1.2

# Sketch on XZ plane
sketch11 = body.newObject("Sketcher::SketchObject", "Sketch010")
sketch11.AttachmentSupport = (doc.getObject("XZ_Plane"), [""])
sketch11.MapMode = "FlatFace"
sketch11.addGeometry([
    Part.LineSegment(App.Vector(-13.9, 2.1, 0), App.Vector(-13.9, 0.5, 0)),
    Part.LineSegment(App.Vector(-13.9, 0.5, 0), App.Vector(14.6, 0.5, 0)),
    Part.LineSegment(App.Vector(14.6, 0.5, 0), App.Vector(14.6, 2.1, 0)),
    Part.LineSegment(App.Vector(14.6, 2.1, 0), App.Vector(-13.9, 2.1, 0)),
], False)
sketch11.addConstraint([
    Sketcher.Constraint("Coincident", 0, 2, 1, 1),
    Sketcher.Constraint("Coincident", 1, 2, 2, 1),
    Sketcher.Constraint("Coincident", 2, 2, 3, 1),
    Sketcher.Constraint("Coincident", 3, 2, 0, 1),
    Sketcher.Constraint("Vertical", 0),
    Sketcher.Constraint("Horizontal", 1),
    Sketcher.Constraint("Vertical", 2),
    Sketcher.Constraint("Horizontal", 3),
    Sketcher.Constraint("DistanceX", 1, 1, 1, 2, 28.5),
    Sketcher.Constraint("DistanceY", 0, 2, 0, 1, 1.6),
    Sketcher.Constraint("DistanceY", -1, 1, 0, 2, 0.5),
    Sketcher.Constraint("DistanceX", 0, 2, -1, 1, 13.908914),
])
pad3 = body.newObject("PartDesign::Pad", "Pad002")
pad3.Profile = sketch11
pad3.Length = 4
doc.recompute()

fillet2 = body.newObject("PartDesign::Fillet", "Fillet001")
fillet2.Base = (pad3, edges_at(pad3, [(-13.909, -4, 1.3), (14.591, -4, 1.3)]))
fillet2.Radius = 1
doc.recompute()

chamfer2 = body.newObject("PartDesign::Chamfer", "Chamfer001")
chamfer2.Base = (fillet2, edges_at(fillet2, [
    (-13.159, -1.2, -3.383),
    (-13.159, -1.2, 4.617),
    (13.841, -1.2, -3.383),
    (13.841, -1.2, 4.617),
]))
chamfer2.Size = 1
doc.recompute()

chamfer3 = body.newObject("PartDesign::Chamfer", "Chamfer002")
chamfer3.Base = (chamfer2, edges_at(chamfer2, [
    (-5.683, 0, -4.3),
    (-2.183, 0, -2.35),
    (7.788, 0, -4.3),
    (11.288, 0, -2.35),
    (21.05, 0, 6.035),
    (17.05, 0, 4.385),
    (-2.476, 0, -4.007),
    (-8.89, 0, -4.007),
    (4.581, 0, -4.007),
    (10.996, 0, -4.007),
    (24.757, 0, 5.742),
    (17.343, 0, 5.742),
    (-5.683, 0, -0.8),
    (-9.183, 0, -2.35),
    (7.788, 0, -0.8),
    (4.288, 0, -2.35),
    (21.05, 0, 3.135),
    (25.05, 0, 4.385),
    (-8.883, 0, -1.1),
    (-2.483, 0, -1.1),
    (4.588, 0, -1.1),
    (10.988, 0, -1.1),
    (17.35, 0, 3.435),
    (24.75, 0, 3.435),
]))
chamfer3.Size = 1
doc.recompute()

fillet3 = body.newObject("PartDesign::Fillet", "Fillet002")
fillet3.Base = (chamfer3, edges_at(chamfer3, [
    (30, 0.6, 8.5),
    (-30, 0.6, 8.5),
    (-30, 0.6, -8.5),
    (30, 0.6, -8.5),
]))
fillet3.Radius = 2
doc.recompute()

chamfer4 = body.newObject("PartDesign::Chamfer", "Chamfer003")
chamfer4.Base = (fillet3, edges_at(fillet3, [
    (30, 0, 0),
    (0, 0, 8.5),
    (-30, 0, 0),
    (0, 0, -8.5),
    (-29.414, 0, -7.914),
    (-29.414, 0, 7.914),
    (29.414, 0, -7.914),
    (29.414, 0, 7.914),
]))
chamfer4.Size = 0.4

doc.recompute()
